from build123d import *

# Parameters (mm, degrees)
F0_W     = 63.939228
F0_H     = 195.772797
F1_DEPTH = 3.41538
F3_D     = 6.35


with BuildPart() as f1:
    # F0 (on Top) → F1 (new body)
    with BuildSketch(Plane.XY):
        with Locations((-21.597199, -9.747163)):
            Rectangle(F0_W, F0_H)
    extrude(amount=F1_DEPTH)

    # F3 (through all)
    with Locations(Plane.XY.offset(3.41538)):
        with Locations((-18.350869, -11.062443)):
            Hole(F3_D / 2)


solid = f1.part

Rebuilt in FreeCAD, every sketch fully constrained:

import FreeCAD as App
import Part
import Sketcher

V = App.Vector
Q = App.Units.Quantity

doc = App.newDocument("Part")
params = doc.addObject("Spreadsheet::Sheet", "Params")
for row, (alias, value) in enumerate([
    ("pad1_length", "3.41538 mm"),
    ("sketch2_diameter", "0.25 in"),
    ("hole_diameter", "0.25 in"),
], start=1):
    params.set(f"A{row}", alias)
    params.set(f"B{row}", "=" + value)
    params.setAlias(f"B{row}", alias)

body = doc.addObject("PartDesign::Body", "Body")

sketch1 = body.newObject("Sketcher::SketchObject", "Sketch")
sketch1.AttachmentSupport = (doc.getObject("XY_Plane"), [""])
sketch1.MapMode = "FlatFace"
sketch1.addGeometry([
    Part.LineSegment(V(-54, 88, 0), V(-54, -108, 0)),
    Part.LineSegment(V(-54, -108, 0), V(10, -108, 0)),
    Part.LineSegment(V(10, -108, 0), V(10, 88, 0)),
    Part.LineSegment(V(10, 88, 0), V(-54, 88, 0)),
], False)
sketch1.addConstraint([
    Sketcher.Constraint("Coincident", 0, 2, 1, 1),
    Sketcher.Constraint("Coincident", 1, 2, 2, 1),
    Sketcher.Constraint("Coincident", 2, 2, 3, 1),
    Sketcher.Constraint("Coincident", 3, 2, 0, 1),
    Sketcher.Constraint("Vertical", 0),
    Sketcher.Constraint("Horizontal", 1),
    Sketcher.Constraint("Vertical", 2),
    Sketcher.Constraint("Horizontal", 3),
    Sketcher.Constraint("DistanceX", 1, 1, 1, 2, Q("63.939228 mm")),
    Sketcher.Constraint("DistanceY", 0, 2, 0, 1, Q("195.772797 mm")),
    Sketcher.Constraint("DistanceY", 0, 2, -1, 1, Q("107.633561 mm")),
    Sketcher.Constraint("DistanceX", 0, 2, -1, 1, Q("53.566813 mm")),
])
pad1 = body.newObject("PartDesign::Pad", "Pad")
pad1.Profile = sketch1
pad1.setExpression("Length", "Params.pad1_length")

sketch2 = body.newObject("Sketcher::SketchObject", "Sketch001")
sketch2.AttachmentSupport = (doc.getObject("XY_Plane"), [""])
sketch2.MapMode = "FlatFace"
sketch2.AttachmentOffset = App.Placement(V(0, 0, 3.41538), App.Rotation())
sketch2.addGeometry(Part.Circle(V(-18.4, -11.1, 0), V(0, 0, 1), 3.2), False)
sketch2.addConstraint([
    Sketcher.Constraint("Diameter", 0, Q("0.25 in")),
    Sketcher.Constraint("DistanceX", 0, 3, -1, 1, Q("18.350869 mm")),
    Sketcher.Constraint("DistanceY", 0, 3, -1, 1, Q("11.062443 mm")),
])
sketch2.setExpression("Constraints[0]", "Params.sketch2_diameter")
doc.recompute()
hole = body.newObject("PartDesign::Hole", "Hole")
hole.Profile = sketch2
hole.ThreadType = "None"
hole.setExpression("Diameter", "Params.hole_diameter")
hole.DepthType = "ThroughAll"

doc.recompute()
